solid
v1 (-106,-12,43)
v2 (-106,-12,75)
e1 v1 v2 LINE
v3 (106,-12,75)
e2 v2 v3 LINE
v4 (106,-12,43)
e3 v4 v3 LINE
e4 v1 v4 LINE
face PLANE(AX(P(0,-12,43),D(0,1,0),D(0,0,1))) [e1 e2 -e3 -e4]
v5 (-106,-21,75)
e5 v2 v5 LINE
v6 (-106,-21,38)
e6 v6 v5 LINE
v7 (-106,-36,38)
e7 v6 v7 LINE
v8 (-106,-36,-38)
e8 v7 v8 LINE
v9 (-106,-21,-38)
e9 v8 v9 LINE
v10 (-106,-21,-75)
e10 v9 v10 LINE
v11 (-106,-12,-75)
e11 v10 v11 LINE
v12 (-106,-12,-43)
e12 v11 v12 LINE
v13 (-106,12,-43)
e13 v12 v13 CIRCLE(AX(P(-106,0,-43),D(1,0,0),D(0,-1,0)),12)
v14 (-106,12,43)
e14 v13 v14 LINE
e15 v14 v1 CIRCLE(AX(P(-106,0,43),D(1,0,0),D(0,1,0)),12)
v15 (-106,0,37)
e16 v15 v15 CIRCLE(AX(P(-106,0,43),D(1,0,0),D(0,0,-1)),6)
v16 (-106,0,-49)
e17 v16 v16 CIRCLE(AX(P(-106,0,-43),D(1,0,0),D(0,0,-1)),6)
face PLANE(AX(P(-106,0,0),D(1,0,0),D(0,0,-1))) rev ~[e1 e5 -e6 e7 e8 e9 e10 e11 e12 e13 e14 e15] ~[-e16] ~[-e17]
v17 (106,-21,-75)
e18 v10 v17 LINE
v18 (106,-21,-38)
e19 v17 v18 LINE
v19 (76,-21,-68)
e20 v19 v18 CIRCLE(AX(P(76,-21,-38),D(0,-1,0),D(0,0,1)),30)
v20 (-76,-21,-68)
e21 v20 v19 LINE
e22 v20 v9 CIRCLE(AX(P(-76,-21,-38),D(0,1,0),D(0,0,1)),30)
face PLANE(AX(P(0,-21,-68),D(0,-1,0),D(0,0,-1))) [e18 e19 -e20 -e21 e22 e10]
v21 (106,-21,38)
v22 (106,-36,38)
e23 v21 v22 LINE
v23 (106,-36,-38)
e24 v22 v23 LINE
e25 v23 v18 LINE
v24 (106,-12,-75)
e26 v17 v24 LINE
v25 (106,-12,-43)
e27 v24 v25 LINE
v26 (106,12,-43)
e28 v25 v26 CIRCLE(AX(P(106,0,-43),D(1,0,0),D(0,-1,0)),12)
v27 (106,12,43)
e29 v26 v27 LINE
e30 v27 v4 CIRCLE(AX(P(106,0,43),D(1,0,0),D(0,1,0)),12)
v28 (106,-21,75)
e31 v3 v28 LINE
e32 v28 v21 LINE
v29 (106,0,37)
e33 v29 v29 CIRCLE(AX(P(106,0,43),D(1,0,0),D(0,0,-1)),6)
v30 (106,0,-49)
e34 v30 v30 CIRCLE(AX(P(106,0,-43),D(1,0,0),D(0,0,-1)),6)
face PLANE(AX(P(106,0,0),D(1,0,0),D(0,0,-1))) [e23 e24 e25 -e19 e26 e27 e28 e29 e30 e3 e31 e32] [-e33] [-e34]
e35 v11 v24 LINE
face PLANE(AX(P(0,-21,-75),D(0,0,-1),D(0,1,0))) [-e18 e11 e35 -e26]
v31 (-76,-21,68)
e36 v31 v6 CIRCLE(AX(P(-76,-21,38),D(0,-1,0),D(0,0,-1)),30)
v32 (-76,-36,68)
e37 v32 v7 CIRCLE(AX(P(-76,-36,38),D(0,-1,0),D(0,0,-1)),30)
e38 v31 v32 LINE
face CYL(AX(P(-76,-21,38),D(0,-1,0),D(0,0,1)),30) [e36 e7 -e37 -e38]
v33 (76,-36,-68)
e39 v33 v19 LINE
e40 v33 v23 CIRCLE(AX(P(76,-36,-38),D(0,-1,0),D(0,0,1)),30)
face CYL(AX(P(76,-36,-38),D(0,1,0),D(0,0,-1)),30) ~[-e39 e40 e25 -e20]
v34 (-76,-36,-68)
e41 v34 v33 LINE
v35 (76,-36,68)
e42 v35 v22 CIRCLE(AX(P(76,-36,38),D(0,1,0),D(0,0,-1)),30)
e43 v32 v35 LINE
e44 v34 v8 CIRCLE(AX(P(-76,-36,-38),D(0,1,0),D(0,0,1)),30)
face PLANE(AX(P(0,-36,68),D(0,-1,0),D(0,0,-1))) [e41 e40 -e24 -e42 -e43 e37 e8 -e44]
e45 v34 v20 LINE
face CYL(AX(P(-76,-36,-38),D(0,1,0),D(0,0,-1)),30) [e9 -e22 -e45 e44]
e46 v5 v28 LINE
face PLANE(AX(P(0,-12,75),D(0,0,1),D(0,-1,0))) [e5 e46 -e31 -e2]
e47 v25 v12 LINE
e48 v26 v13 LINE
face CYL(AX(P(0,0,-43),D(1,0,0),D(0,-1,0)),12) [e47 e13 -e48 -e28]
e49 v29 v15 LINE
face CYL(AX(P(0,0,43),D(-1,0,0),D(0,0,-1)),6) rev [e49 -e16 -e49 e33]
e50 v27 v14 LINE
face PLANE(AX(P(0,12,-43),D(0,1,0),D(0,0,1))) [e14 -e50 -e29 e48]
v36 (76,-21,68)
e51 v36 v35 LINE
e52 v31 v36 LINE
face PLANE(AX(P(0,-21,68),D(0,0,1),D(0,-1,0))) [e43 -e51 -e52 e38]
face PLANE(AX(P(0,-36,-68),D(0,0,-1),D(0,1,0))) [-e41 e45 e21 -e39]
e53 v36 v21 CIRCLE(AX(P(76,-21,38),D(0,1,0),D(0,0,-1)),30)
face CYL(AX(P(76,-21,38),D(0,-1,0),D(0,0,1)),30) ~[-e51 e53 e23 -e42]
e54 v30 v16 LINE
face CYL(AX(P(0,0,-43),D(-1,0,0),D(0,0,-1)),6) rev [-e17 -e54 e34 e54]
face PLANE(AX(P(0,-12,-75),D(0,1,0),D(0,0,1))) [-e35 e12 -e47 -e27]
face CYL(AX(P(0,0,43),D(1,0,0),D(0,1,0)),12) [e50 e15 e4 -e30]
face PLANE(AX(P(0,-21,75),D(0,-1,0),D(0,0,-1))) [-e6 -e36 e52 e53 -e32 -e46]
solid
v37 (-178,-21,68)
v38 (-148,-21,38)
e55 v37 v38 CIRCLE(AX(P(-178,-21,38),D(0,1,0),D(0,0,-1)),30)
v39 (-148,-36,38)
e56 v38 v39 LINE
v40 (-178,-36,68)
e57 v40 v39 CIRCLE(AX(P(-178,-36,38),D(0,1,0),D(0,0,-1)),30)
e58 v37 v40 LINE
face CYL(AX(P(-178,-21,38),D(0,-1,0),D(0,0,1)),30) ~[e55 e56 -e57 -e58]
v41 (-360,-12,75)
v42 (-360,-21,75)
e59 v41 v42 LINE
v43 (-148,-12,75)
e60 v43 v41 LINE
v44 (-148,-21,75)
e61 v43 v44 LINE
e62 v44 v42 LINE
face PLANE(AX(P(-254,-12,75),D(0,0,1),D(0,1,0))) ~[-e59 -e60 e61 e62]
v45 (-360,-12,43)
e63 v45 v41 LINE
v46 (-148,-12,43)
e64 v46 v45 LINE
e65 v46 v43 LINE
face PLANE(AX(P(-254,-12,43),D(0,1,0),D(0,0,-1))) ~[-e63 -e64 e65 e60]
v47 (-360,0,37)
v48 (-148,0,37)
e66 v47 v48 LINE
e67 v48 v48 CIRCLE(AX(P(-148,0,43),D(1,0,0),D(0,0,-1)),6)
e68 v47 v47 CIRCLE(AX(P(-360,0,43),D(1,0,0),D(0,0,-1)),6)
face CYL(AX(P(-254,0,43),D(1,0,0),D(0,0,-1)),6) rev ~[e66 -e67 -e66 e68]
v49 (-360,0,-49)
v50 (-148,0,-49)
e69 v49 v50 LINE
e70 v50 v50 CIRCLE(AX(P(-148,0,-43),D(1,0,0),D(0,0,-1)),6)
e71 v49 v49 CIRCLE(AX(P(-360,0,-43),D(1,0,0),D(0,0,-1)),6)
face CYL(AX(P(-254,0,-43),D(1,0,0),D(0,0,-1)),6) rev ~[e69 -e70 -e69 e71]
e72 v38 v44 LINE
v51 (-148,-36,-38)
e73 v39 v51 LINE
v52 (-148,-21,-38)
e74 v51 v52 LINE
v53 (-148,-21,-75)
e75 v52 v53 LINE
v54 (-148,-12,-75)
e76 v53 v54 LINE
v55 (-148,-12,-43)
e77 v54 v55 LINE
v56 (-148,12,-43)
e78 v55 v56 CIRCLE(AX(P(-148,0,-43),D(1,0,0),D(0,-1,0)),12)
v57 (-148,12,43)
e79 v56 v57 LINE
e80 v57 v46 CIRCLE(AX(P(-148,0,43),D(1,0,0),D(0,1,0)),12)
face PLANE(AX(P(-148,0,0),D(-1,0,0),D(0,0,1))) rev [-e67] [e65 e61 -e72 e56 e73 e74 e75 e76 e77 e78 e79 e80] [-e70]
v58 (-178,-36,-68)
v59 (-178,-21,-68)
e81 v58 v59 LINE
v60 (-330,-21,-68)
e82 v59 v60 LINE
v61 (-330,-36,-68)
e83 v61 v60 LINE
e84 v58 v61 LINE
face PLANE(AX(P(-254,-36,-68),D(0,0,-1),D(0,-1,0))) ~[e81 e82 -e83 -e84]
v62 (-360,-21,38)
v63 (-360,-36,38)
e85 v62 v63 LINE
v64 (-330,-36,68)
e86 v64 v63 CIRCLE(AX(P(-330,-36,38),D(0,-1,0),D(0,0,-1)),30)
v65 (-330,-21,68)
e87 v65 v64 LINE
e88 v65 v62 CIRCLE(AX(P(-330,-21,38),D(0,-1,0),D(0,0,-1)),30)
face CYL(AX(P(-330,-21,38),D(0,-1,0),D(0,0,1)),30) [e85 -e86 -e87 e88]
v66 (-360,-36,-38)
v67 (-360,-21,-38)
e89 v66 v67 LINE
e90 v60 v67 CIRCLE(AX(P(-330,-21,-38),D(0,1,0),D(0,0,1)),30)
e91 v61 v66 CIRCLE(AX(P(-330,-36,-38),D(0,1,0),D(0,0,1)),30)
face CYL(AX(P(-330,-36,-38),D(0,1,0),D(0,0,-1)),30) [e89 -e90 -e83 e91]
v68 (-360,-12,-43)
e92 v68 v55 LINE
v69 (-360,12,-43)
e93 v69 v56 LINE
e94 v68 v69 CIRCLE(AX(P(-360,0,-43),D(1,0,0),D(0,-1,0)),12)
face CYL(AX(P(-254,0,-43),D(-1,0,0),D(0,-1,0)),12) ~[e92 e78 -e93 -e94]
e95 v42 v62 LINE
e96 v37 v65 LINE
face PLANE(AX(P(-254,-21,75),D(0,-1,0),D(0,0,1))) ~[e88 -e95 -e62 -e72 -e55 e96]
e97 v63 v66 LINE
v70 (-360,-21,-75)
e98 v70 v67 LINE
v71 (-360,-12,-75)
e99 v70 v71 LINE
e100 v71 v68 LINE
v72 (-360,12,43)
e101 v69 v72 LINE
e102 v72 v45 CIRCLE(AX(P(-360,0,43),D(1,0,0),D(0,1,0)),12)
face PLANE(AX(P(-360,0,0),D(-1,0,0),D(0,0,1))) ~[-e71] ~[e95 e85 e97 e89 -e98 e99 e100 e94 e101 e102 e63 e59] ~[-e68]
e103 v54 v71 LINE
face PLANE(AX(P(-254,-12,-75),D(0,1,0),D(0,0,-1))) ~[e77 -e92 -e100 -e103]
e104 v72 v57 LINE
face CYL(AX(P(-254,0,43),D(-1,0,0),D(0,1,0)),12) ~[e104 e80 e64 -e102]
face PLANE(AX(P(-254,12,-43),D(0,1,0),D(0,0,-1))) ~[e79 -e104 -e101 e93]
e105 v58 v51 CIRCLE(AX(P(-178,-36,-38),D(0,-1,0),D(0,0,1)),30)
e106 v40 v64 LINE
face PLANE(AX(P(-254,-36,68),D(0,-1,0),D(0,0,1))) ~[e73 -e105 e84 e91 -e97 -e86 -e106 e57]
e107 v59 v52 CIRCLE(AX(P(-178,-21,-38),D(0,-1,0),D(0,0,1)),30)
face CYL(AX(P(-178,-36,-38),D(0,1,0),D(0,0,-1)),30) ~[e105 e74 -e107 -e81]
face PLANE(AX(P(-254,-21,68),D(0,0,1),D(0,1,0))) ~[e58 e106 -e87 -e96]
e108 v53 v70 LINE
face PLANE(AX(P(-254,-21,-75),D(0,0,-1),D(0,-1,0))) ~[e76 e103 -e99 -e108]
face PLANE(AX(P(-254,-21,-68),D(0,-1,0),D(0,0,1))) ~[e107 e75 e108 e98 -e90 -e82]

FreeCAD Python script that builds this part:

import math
import FreeCAD as App
import Part
import Sketcher
from FreeCAD import Vector
Q = App.Units.Quantity


def edges_at(feature, points):
    """Names of the edges that pass closest to the given points."""
    edges = feature.Shape.Edges
    near = lambda p: min(range(len(edges)), key=lambda i: edges[i].distToShape(Part.Vertex(*p))[0])
    return sorted({f"Edge{near(p) + 1}" for p in points})

doc = App.newDocument("Part")
body = doc.addObject("PartDesign::Body", "Body")

# Sketch on YZ plane
sketch1 = doc.addObject("Sketcher::SketchObject", "Sketch")
body.addObject(sketch1)
sketch1.AttachmentSupport = (doc.YZ_Plane, [""])
sketch1.MapMode = "FlatFace"
sketch1.addGeometry(Part.ArcOfCircle(Part.Circle(Vector(0, 43, 0), Vector(0, 0, 1), 12), math.radians(0), math.radians(180)), False)
sketch1.addGeometry(Part.LineSegment(Vector(-12, 43, 0), Vector(-12, 75, 0)), False)
sketch1.addGeometry(Part.LineSegment(Vector(-12, 75, 0), Vector(-21, 75, 0)), False)
sketch1.addGeometry(Part.LineSegment(Vector(-21, 75, 0), Vector(-21, 68, 0)), False)
sketch1.addGeometry(Part.LineSegment(Vector(-21, 68, 0), Vector(-36, 68, 0)), False)
sketch1.addGeometry(Part.LineSegment(Vector(-36, 68, 0), Vector(-36, -68, 0)), False)
sketch1.addGeometry(Part.LineSegment(Vector(-36, -68, 0), Vector(-21, -68, 0)), False)
sketch1.addGeometry(Part.LineSegment(Vector(-21, -68, 0), Vector(-21, -75, 0)), False)
sketch1.addGeometry(Part.LineSegment(Vector(-21, -75, 0), Vector(-12, -75, 0)), False)
sketch1.addGeometry(Part.LineSegment(Vector(-12, -75, 0), Vector(-12, -43, 0)), False)
sketch1.addGeometry(Part.ArcOfCircle(Part.Circle(Vector(0, -43, 0), Vector(0, 0, 1), 12), math.radians(180), math.radians(360)), False)
sketch1.addGeometry(Part.LineSegment(Vector(12, -43, 0), Vector(12, 43, 0)), False)
sketch1.addGeometry(Part.Circle(Vector(0, 43, 0), Vector(0, 0, 1), 6), False)
sketch1.addGeometry(Part.Circle(Vector(0, -43, 0), Vector(0, 0, 1), 6), False)
sketch1.addConstraint(Sketcher.Constraint("Tangent", 0, 2, 1, 1))
sketch1.addConstraint(Sketcher.Constraint("Coincident", 1, 2, 2, 1))
sketch1.addConstraint(Sketcher.Constraint("Coincident", 2, 2, 3, 1))
sketch1.addConstraint(Sketcher.Constraint("Coincident", 3, 2, 4, 1))
sketch1.addConstraint(Sketcher.Constraint("Coincident", 4, 2, 5, 1))
sketch1.addConstraint(Sketcher.Constraint("Coincident", 5, 2, 6, 1))
sketch1.addConstraint(Sketcher.Constraint("Coincident", 6, 2, 7, 1))
sketch1.addConstraint(Sketcher.Constraint("Coincident", 7, 2, 8, 1))
sketch1.addConstraint(Sketcher.Constraint("Coincident", 8, 2, 9, 1))
sketch1.addConstraint(Sketcher.Constraint("Tangent", 9, 2, 10, 1))
sketch1.addConstraint(Sketcher.Constraint("Tangent", 10, 2, 11, 1))
sketch1.addConstraint(Sketcher.Constraint("Tangent", 11, 2, 0, 1))
sketch1.addConstraint(Sketcher.Constraint("Vertical", 1))
sketch1.addConstraint(Sketcher.Constraint("Horizontal", 2))
sketch1.addConstraint(Sketcher.Constraint("Vertical", 3))
sketch1.addConstraint(Sketcher.Constraint("Horizontal", 4))
sketch1.addConstraint(Sketcher.Constraint("Vertical", 5))
sketch1.addConstraint(Sketcher.Constraint("Horizontal", 6))
sketch1.addConstraint(Sketcher.Constraint("Vertical", 7))
sketch1.addConstraint(Sketcher.Constraint("Horizontal", 8))
sketch1.addConstraint(Sketcher.Constraint("Vertical", 9))
sketch1.addConstraint(Sketcher.Constraint("Vertical", 11))
sketch1.addConstraint(Sketcher.Constraint("Coincident", 12, 3, 0, 3))
sketch1.addConstraint(Sketcher.Constraint("Coincident", 13, 3, 10, 3))
sketch1.addConstraint(Sketcher.Constraint("Equal", 0, 10))
sketch1.addConstraint(Sketcher.Constraint("Equal", 12, 13))
sketch1.addConstraint(Sketcher.Constraint("Symmetric", 0, 3, 10, 3, -1, 1))
sketch1.addConstraint(Sketcher.Constraint("Symmetric", 3, 2, 6, 2, -1))
sketch1.addConstraint(Sketcher.Constraint("Equal", 3, 7))
sketch1.addConstraint(Sketcher.Constraint("Diameter", 12, Q("12 mm")))
sketch1.addConstraint(Sketcher.Constraint("Radius", 0, Q("12 mm")))
sketch1.addConstraint(Sketcher.Constraint("DistanceX", 2, 2, 2, 1, Q("9 mm")))
sketch1.addConstraint(Sketcher.Constraint("DistanceX", 4, 2, 4, 1, Q("15 mm")))
sketch1.addConstraint(Sketcher.Constraint("DistanceY", 1, 1, 1, 2, Q("32 mm")))
sketch1.addConstraint(Sketcher.Constraint("DistanceY", 3, 2, 3, 1, Q("7 mm")))
sketch1.addConstraint(Sketcher.Constraint("DistanceY", 5, 2, 5, 1, Q("136 mm")))
pad1 = doc.addObject("PartDesign::Pad", "Pad")
body.addObject(pad1)
pad1.Profile = sketch1
pad1.Length = 212
pad1.Midplane = True
doc.recompute()

fillet = doc.addObject("PartDesign::Fillet", "Fillet")
body.addObject(fillet)
fillet.Base = (pad1, edges_at(pad1, [
    (-106, -28.5, -68),
    (-106, -28.5, 68),
    (106, -28.5, 68),
    (106, -28.5, -68),
]))
fillet.Radius = 30
body2 = doc.addObject("PartDesign::Body", "Body001")
doc.recompute()

mirroring = doc.addObject("Part::Mirroring", "Mirroring")
mirroring.Source = body
mirroring.Base = Vector(-127, 0, 0)
mirroring.Normal = Vector(-1, 0, 0)
body2.BaseFeature = mirroring
doc.recompute()
mirroring.Visibility = False

doc.recompute()
